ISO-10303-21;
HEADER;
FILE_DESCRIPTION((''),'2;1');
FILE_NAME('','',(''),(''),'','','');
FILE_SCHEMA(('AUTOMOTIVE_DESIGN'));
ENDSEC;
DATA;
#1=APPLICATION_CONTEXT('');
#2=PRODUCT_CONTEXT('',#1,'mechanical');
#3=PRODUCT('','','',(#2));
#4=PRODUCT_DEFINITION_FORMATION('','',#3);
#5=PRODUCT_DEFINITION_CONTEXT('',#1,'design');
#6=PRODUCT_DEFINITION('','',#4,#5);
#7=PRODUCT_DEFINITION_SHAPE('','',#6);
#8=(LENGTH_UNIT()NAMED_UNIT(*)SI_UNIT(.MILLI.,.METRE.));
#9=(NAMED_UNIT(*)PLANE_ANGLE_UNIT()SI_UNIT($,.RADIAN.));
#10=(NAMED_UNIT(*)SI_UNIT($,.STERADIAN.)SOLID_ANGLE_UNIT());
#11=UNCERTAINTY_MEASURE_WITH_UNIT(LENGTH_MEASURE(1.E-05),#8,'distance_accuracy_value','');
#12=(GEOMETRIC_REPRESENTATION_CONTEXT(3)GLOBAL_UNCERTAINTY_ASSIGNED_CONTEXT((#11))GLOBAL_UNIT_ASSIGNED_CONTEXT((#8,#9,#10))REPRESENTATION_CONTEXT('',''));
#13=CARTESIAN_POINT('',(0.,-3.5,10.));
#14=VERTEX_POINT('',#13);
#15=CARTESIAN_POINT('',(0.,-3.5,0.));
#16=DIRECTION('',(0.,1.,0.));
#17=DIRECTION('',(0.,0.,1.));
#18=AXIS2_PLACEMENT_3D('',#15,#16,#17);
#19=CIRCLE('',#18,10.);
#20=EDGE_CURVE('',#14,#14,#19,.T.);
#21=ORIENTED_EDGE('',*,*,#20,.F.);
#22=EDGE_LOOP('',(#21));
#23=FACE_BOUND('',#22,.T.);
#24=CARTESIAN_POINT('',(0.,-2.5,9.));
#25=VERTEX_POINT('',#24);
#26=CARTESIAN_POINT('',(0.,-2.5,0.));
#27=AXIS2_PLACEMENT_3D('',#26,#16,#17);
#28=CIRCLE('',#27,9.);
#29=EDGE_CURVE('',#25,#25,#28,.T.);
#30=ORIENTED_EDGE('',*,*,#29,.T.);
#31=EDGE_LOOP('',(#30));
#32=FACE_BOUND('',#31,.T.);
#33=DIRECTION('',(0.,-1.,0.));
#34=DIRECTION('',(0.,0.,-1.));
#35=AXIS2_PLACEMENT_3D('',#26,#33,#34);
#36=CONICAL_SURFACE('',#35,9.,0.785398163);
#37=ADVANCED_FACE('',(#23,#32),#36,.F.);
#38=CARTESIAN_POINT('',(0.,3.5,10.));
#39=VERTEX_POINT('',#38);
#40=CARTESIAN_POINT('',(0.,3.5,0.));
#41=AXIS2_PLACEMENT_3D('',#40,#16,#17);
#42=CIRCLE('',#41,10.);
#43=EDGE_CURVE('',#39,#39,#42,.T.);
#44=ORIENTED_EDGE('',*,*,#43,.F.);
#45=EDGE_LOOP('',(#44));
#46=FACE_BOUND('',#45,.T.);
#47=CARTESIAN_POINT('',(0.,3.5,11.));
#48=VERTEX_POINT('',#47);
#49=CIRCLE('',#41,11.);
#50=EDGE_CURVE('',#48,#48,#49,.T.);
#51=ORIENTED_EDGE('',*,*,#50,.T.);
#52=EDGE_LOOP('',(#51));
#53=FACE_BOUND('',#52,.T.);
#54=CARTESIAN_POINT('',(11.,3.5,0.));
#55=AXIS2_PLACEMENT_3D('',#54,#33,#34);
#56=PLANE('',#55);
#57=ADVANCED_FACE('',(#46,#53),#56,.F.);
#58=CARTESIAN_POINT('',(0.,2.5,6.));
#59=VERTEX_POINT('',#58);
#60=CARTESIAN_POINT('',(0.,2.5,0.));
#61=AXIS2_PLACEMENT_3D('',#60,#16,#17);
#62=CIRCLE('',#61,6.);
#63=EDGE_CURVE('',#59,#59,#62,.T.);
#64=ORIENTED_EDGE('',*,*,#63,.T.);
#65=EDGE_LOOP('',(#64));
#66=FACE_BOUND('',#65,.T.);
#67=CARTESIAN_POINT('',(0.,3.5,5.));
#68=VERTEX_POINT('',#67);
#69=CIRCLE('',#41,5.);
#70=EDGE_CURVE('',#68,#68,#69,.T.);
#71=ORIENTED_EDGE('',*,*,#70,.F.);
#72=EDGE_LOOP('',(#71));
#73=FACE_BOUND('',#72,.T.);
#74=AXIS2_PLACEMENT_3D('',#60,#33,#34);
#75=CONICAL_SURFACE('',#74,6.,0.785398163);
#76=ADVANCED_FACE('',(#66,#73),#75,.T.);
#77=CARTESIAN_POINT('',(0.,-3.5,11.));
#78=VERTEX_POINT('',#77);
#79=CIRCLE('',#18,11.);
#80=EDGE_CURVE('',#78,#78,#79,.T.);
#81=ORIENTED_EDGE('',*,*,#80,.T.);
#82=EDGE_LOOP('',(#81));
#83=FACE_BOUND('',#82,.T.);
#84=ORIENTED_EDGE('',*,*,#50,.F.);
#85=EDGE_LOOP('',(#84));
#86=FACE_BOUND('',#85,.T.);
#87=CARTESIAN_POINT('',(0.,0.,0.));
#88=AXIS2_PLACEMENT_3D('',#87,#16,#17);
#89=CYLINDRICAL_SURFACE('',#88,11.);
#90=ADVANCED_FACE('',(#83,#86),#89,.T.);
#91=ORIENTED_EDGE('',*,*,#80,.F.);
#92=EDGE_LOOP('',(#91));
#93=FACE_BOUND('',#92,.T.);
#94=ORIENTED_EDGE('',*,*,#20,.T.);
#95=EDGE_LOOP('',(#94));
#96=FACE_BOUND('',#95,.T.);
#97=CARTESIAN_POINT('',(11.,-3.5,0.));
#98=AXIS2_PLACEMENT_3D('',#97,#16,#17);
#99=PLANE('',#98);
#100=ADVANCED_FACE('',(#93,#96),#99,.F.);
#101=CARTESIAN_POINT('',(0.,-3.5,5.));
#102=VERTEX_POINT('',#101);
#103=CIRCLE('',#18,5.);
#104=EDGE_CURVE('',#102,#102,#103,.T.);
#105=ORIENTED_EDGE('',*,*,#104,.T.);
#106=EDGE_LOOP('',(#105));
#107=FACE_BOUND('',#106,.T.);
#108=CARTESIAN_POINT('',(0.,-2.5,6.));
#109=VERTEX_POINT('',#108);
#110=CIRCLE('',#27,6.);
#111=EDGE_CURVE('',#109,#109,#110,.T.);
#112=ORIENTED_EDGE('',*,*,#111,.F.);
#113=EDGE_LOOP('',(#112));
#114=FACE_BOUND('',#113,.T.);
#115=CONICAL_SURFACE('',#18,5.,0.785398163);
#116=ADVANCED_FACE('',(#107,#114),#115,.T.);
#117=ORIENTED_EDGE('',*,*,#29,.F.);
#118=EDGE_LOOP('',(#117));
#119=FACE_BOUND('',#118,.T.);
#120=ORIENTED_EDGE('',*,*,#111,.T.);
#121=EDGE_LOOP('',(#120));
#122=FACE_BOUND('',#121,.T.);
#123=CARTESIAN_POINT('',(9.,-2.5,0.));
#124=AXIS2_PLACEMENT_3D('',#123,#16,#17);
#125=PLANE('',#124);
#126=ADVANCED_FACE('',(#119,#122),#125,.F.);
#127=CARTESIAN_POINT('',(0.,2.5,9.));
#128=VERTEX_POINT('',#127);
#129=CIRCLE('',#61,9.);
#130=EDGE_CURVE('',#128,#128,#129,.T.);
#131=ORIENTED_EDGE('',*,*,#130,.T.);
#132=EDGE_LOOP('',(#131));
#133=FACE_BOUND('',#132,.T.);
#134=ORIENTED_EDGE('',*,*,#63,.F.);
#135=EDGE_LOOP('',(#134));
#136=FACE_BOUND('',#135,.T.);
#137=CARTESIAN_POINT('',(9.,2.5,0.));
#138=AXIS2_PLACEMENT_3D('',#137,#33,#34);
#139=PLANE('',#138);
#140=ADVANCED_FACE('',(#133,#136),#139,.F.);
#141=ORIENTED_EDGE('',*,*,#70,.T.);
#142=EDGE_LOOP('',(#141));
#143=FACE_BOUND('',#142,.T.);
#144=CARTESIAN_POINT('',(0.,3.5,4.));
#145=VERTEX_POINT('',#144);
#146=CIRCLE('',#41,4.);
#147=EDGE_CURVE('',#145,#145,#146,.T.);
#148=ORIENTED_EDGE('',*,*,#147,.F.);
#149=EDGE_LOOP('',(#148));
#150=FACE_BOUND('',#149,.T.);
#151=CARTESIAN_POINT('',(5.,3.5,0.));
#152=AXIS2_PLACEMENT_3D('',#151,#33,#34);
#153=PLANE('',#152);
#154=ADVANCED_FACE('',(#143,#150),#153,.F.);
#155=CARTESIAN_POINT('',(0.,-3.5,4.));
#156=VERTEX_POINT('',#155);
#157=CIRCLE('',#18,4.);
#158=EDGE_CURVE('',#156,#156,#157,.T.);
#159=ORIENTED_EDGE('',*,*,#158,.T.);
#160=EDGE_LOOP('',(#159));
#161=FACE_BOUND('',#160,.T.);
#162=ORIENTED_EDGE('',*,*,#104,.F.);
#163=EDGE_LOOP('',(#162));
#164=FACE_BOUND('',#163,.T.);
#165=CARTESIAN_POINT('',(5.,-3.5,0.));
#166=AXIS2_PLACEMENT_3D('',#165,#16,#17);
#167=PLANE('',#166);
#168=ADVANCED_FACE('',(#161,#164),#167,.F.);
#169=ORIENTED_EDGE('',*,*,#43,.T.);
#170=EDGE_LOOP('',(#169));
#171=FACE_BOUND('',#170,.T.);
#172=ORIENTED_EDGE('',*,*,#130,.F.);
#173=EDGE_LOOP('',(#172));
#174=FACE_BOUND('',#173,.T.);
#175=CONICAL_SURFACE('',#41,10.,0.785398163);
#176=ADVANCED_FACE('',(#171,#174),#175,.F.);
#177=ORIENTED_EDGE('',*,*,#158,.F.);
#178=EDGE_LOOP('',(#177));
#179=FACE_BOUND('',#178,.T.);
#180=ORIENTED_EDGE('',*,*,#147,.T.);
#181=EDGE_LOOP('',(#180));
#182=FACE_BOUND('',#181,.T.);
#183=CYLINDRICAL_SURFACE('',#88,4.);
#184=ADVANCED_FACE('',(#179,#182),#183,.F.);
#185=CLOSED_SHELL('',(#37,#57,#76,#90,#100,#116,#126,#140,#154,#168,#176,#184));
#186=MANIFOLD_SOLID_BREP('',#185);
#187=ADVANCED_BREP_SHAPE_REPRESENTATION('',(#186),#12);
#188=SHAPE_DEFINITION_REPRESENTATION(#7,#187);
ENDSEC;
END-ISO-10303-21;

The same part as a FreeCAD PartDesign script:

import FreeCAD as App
import Part
import Sketcher
from FreeCAD import Vector
Q = App.Units.Quantity


def add_polygon(sketch, points):
    """Adds a closed chain of lines whose ends are joined by coincident constraints."""
    first, n = sketch.GeometryCount, len(points)
    for a, b in zip(points, points[1:] + points[:1]):
        sketch.addGeometry(Part.LineSegment(App.Vector(*a, 0), App.Vector(*b, 0)), False)
    for i in range(n):
        sketch.addConstraint(Sketcher.Constraint("Coincident", first + i, 2, first + (i + 1) % n, 1))

doc = App.newDocument("Part")
body = doc.addObject("PartDesign::Body", "Body")

sketch1 = body.newObject("Sketcher::SketchObject", "Sketch")
sketch1.AttachmentSupport = (doc.getObject("XY_Plane"), [""])
sketch1.MapMode = "FlatFace"
add_polygon(sketch1, [(4, 3.5), (4, -3.5), (5, -3.5), (6, -2.5), (9, -2.5), (10, -3.5), (11, -3.5), (11, 3.5), (10, 3.5), (9, 2.5), (6, 2.5), (5, 3.5)])
sketch1.addConstraint([
    Sketcher.Constraint("Vertical", 0),
    Sketcher.Constraint("Horizontal", 1),
    Sketcher.Constraint("Horizontal", 3),
    Sketcher.Constraint("Horizontal", 5),
    Sketcher.Constraint("Vertical", 6),
    Sketcher.Constraint("Horizontal", 7),
    Sketcher.Constraint("Horizontal", 9),
    Sketcher.Constraint("Horizontal", 11),
    Sketcher.Constraint("Symmetric", 4, 2, 7, 2, -1),
    Sketcher.Constraint("Symmetric", 3, 2, 8, 2, -1),
    Sketcher.Constraint("Symmetric", 1, 2, 10, 2, -1),
    Sketcher.Constraint("Perpendicular", 2, 4),
    Sketcher.Constraint("Perpendicular", 4, 8),
    Sketcher.Constraint("Perpendicular", 8, 10),
    Sketcher.Constraint("Horizontal", 1, 2, 4, 2),
    Sketcher.Constraint("Equal", 1, 5),
    Sketcher.Constraint("DistanceX", 1, 1, 1, 2, Q("1 mm")),
    Sketcher.Constraint("DistanceX", 3, 1, 3, 2, Q("3 mm")),
    Sketcher.Constraint("DistanceY", 0, 2, 0, 1, Q("7 mm")),
    Sketcher.Constraint("DistanceX", -1, 1, 0, 2, Q("4 mm")),
    Sketcher.Constraint("DistanceX", -1, 1, 2, 2, Q("6 mm")),
])
revolution = body.newObject("PartDesign::Revolution", "Revolution")
revolution.Profile = sketch1
revolution.ReferenceAxis = (sketch1, ["V_Axis"])
revolution.Angle = 360

doc.recompute()
